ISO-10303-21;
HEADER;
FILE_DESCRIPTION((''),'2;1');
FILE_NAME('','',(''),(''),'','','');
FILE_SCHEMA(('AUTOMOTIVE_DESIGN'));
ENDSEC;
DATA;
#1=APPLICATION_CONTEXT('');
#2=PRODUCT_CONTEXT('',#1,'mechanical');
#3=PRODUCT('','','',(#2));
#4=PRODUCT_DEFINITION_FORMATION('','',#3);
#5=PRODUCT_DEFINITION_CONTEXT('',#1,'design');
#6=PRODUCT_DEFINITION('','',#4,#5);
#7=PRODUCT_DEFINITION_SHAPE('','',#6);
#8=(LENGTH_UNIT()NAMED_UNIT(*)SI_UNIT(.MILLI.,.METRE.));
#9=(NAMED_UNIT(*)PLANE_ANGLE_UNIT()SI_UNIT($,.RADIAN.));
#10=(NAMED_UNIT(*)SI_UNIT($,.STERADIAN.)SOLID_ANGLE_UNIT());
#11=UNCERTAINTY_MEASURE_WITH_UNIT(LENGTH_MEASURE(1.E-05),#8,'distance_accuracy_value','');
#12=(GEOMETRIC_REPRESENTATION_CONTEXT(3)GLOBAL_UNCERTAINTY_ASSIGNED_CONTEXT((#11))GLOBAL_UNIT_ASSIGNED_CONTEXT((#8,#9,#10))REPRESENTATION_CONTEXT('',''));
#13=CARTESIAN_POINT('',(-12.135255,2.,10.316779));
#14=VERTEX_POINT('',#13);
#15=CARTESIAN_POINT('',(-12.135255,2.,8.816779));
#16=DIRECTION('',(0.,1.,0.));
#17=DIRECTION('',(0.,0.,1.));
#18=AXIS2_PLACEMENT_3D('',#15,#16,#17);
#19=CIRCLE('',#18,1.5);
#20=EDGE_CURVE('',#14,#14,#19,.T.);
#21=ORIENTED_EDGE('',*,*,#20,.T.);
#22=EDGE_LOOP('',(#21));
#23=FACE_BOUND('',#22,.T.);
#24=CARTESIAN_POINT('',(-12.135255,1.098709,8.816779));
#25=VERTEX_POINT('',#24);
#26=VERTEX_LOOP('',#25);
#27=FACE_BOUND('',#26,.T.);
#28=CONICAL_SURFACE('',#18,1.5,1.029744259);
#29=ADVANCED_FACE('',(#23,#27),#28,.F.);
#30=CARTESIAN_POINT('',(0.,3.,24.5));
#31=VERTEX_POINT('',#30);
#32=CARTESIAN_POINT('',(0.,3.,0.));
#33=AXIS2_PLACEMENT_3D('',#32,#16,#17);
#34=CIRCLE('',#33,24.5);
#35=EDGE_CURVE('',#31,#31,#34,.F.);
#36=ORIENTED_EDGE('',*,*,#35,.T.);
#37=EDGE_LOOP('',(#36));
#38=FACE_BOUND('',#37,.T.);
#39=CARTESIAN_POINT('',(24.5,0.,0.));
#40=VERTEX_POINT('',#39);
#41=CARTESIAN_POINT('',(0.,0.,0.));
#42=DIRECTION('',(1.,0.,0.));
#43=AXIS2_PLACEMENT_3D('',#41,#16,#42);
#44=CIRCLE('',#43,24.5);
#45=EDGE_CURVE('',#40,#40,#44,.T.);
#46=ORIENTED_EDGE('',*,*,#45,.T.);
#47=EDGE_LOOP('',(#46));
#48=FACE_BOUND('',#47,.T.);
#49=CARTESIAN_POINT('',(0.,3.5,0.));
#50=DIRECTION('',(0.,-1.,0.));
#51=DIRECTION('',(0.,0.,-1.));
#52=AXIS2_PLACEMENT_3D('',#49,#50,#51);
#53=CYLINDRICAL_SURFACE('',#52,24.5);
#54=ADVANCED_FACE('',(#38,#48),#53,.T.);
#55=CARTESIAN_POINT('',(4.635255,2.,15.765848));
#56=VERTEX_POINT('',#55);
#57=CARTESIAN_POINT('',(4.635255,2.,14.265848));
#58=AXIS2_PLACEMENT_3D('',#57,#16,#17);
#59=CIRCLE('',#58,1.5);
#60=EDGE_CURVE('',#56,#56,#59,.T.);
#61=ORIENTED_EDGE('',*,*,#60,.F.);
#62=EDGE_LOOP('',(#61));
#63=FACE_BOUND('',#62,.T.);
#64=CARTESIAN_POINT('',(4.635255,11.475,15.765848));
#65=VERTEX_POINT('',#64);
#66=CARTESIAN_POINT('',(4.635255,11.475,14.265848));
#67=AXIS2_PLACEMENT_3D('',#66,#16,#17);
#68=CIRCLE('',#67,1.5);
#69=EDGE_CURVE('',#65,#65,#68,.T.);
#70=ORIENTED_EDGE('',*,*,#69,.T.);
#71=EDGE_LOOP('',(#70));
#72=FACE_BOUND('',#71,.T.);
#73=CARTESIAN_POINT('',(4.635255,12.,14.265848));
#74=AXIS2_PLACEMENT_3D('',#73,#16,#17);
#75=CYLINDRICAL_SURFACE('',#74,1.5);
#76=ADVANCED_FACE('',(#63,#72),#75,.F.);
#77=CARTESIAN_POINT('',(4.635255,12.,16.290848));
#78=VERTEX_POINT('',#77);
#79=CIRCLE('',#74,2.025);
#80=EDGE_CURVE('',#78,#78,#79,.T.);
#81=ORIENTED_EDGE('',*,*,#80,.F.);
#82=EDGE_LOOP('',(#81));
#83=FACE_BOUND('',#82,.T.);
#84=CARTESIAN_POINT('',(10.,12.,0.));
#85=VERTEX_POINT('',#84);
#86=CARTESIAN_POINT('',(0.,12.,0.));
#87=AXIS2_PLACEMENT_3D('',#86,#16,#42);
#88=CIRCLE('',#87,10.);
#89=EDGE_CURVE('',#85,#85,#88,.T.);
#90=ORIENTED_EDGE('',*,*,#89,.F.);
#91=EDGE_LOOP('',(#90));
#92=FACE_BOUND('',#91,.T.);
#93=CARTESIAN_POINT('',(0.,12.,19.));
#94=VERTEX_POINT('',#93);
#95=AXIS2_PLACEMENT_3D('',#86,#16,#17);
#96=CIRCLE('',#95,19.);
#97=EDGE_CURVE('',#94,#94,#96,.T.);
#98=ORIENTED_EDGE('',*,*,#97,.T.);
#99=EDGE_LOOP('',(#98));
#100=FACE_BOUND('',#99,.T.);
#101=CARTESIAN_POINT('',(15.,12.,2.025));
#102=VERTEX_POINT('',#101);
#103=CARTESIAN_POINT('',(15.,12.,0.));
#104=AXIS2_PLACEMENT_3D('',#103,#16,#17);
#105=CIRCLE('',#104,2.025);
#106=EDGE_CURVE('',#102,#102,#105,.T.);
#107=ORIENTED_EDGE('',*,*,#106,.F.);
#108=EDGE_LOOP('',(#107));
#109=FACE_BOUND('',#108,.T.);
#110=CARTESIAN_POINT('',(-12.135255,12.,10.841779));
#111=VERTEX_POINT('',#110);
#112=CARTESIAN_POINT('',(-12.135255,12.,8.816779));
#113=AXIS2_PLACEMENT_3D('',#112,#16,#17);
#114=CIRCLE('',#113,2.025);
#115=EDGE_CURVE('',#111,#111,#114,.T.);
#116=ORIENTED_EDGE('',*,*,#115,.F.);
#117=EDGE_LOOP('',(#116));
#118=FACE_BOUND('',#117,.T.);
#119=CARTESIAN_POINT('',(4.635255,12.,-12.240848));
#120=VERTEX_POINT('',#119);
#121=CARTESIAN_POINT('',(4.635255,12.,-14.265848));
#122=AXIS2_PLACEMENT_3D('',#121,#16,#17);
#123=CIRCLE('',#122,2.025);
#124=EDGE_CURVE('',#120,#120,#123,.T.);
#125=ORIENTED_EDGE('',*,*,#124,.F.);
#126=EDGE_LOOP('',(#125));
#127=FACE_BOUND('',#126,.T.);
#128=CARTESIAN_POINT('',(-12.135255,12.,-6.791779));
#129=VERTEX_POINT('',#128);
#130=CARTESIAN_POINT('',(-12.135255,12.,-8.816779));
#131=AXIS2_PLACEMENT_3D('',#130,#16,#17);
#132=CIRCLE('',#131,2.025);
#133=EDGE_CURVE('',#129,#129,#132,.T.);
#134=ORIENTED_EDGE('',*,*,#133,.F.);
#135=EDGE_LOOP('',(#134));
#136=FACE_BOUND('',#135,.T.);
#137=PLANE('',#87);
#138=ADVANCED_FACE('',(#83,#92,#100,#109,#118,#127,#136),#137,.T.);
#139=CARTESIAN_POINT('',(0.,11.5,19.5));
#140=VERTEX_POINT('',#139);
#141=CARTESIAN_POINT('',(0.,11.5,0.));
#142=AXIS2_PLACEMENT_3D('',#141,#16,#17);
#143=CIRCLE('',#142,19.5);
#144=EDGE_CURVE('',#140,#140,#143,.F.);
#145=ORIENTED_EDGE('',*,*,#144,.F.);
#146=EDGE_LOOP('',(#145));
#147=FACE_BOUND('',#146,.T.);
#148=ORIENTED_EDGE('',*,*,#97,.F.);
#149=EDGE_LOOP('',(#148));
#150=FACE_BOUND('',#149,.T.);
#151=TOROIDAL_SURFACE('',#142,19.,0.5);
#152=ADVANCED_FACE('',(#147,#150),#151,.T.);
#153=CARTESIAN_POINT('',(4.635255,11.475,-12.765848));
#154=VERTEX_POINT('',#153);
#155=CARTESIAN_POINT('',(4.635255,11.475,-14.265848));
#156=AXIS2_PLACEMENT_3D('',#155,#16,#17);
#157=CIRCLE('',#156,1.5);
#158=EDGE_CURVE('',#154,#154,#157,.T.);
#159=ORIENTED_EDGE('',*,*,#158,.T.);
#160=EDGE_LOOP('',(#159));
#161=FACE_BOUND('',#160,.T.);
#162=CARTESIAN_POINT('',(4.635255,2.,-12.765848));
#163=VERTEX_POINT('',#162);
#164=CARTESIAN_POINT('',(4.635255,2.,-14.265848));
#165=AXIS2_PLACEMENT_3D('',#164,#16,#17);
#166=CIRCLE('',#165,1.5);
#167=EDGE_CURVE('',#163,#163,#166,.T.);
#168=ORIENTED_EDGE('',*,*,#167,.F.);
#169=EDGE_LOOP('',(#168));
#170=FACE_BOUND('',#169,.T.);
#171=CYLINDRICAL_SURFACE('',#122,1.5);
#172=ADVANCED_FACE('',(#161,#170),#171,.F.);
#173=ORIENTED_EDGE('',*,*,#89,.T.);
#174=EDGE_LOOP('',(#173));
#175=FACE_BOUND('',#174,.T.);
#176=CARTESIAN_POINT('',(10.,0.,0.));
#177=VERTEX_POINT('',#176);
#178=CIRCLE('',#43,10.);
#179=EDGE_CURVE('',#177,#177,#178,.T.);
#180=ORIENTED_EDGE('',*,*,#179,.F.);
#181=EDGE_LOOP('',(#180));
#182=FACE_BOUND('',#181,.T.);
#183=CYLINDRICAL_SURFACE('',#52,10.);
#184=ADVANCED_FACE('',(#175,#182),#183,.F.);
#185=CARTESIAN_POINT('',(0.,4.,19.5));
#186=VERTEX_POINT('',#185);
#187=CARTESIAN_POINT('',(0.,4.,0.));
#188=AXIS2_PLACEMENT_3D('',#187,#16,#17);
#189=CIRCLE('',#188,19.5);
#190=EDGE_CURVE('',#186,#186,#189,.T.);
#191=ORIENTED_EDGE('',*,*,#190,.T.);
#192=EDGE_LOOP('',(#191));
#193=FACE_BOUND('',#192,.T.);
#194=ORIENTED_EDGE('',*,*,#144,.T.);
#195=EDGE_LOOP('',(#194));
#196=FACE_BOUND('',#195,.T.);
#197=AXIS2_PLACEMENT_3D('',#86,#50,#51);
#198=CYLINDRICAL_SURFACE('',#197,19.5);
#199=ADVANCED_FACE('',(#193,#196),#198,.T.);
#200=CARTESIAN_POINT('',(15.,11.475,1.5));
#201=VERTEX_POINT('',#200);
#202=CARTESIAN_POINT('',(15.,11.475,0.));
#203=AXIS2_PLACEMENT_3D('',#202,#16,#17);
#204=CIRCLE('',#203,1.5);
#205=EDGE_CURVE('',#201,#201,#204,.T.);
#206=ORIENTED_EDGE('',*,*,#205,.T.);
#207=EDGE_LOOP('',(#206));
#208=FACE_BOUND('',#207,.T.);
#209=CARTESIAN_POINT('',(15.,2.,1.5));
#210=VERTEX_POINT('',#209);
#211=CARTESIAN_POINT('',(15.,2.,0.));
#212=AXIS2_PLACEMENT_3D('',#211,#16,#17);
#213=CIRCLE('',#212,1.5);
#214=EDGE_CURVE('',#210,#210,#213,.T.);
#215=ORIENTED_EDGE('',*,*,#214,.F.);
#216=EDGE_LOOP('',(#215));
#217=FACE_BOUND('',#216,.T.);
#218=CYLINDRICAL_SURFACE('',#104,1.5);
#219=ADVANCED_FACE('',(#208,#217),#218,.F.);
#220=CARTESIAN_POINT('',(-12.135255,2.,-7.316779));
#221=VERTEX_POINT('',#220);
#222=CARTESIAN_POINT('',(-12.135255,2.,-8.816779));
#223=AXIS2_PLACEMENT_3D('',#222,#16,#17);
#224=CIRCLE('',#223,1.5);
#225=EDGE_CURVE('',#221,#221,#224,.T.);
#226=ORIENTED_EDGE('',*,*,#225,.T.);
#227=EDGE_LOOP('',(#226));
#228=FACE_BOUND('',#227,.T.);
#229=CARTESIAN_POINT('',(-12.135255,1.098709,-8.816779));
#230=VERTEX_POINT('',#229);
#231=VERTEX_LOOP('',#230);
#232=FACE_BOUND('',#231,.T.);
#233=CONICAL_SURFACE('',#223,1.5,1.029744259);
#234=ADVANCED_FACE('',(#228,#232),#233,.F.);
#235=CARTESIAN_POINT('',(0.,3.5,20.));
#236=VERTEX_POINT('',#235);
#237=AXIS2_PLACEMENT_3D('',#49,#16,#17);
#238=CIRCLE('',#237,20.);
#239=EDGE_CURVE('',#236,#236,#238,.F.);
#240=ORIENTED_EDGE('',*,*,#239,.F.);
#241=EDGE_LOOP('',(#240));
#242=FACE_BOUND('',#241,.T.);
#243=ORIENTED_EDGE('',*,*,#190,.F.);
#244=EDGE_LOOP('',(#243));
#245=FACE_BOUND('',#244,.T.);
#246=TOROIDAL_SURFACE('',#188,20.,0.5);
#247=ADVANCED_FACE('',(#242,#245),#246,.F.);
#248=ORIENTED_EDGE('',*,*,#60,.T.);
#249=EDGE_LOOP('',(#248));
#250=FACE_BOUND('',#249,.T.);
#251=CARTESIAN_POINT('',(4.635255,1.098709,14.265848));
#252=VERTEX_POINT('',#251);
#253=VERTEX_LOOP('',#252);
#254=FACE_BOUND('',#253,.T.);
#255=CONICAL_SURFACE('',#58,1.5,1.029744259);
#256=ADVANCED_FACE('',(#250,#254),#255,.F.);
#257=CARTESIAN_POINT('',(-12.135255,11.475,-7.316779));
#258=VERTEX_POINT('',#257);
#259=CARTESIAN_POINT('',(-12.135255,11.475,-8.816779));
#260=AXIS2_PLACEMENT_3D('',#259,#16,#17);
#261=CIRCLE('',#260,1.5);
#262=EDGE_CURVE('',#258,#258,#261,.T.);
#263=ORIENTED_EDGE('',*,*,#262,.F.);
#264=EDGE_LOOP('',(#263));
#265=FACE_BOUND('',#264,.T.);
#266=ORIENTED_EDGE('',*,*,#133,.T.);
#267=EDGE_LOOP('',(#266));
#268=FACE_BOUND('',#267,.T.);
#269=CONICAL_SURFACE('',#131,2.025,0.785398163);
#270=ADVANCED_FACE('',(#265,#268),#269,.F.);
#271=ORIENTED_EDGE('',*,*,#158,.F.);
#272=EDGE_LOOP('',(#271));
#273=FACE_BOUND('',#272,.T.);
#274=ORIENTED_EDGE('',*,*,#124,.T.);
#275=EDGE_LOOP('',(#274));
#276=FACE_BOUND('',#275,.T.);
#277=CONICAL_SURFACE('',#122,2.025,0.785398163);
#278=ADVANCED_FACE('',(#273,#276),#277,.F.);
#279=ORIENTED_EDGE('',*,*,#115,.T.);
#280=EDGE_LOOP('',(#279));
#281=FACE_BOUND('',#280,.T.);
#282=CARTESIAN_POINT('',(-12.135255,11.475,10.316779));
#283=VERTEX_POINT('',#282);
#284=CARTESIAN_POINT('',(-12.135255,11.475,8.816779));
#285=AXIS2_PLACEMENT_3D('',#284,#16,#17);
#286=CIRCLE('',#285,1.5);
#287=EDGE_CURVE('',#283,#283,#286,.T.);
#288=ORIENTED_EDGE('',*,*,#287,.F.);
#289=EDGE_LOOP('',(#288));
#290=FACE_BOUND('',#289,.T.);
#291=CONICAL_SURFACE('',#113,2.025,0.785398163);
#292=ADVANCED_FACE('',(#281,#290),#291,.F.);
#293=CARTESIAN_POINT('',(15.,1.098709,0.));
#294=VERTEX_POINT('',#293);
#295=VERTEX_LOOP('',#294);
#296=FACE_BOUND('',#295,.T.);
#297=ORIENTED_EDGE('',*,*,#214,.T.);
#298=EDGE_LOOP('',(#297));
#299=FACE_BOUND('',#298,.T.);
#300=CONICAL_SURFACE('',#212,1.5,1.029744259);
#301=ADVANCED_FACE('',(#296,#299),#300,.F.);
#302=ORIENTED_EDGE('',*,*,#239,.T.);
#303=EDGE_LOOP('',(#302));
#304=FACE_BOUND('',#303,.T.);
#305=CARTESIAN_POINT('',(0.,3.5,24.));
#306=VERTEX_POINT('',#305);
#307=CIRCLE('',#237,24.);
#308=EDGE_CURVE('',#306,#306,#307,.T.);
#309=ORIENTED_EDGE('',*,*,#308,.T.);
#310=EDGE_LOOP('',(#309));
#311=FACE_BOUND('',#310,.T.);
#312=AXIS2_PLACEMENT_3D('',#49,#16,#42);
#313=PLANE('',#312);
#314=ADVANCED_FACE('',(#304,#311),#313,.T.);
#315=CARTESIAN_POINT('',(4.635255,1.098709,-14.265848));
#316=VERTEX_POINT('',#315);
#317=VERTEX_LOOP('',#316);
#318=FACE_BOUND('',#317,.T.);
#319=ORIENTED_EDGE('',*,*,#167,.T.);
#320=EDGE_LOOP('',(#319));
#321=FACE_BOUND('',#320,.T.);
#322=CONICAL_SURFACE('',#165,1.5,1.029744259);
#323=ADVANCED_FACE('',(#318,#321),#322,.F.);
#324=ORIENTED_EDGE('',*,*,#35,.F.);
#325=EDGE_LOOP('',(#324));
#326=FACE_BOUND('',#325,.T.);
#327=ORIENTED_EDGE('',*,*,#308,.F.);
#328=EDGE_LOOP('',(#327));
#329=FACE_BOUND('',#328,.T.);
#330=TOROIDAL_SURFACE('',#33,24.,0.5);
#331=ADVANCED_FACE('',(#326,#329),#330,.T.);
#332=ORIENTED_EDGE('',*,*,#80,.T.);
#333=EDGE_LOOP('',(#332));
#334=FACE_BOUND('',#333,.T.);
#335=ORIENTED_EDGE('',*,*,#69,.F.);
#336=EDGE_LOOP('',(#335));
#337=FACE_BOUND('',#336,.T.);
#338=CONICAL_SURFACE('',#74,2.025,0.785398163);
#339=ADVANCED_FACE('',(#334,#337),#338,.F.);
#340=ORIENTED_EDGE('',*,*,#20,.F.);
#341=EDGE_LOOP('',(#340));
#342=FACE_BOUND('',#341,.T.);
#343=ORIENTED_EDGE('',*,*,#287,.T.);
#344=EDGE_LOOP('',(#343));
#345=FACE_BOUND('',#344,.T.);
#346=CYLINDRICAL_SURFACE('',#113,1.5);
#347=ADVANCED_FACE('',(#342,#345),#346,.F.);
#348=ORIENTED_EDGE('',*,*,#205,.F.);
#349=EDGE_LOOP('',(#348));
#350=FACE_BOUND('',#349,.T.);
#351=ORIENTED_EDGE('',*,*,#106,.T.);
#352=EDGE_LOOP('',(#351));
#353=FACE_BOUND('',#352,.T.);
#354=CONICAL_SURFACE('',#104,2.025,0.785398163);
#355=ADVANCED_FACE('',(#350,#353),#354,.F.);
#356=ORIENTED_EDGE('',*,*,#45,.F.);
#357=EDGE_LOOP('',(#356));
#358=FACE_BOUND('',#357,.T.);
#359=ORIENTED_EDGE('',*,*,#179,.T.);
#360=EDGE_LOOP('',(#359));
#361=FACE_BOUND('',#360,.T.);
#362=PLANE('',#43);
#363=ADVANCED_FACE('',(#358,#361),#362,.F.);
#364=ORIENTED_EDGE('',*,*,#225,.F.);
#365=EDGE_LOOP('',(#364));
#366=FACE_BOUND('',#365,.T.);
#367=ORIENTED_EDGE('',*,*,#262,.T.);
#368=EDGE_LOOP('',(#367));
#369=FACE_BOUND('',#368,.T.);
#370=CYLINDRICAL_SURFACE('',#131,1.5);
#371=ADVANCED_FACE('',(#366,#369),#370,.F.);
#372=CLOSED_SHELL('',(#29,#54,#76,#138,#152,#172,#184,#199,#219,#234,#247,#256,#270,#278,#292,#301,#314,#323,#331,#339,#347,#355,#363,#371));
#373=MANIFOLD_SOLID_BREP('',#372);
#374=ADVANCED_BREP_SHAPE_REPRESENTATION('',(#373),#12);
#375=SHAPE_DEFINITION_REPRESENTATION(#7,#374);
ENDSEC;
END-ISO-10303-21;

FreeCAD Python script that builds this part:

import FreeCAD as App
import Part
import Sketcher

V = App.Vector
Q = App.Units.Quantity


def edges_at(feature, points):
    """Names of the edges that pass closest to the given points."""
    edges = feature.Shape.Edges
    near = lambda p: min(range(len(edges)), key=lambda i: edges[i].distToShape(Part.Vertex(*p))[0])
    return sorted({f"Edge{near(p) + 1}" for p in points})


def add_polygon(sketch, points):
    """Adds a closed chain of lines whose ends are joined by coincident constraints."""
    first, n = sketch.GeometryCount, len(points)
    for a, b in zip(points, points[1:] + points[:1]):
        sketch.addGeometry(Part.LineSegment(App.Vector(*a, 0), App.Vector(*b, 0)), False)
    for i in range(n):
        sketch.addConstraint(Sketcher.Constraint("Coincident", first + i, 2, first + (i + 1) % n, 1))

doc = App.newDocument("Part")
params = doc.addObject("Spreadsheet::Sheet", "Params")
for row, (alias, value) in enumerate([
    ("sketch1_diameter", "49 mm"),
    ("sketch1_diameter2", "20 mm"),
    ("pad1_length", "3.5 mm"),
    ("sketch2_diameter", "39 mm"),
    ("sketch2_diameter2", "20 mm"),
    ("pad2_length", "12 mm"),
    ("groove_angle", "360 deg"),
    ("fillet_radius", "0.5 mm"),
], start=1):
    params.set(f"A{row}", alias)
    params.set(f"B{row}", "=" + value)
    params.setAlias(f"B{row}", alias)

body = doc.addObject("PartDesign::Body", "Body")

# Sketch on XZ plane
sketch1 = body.newObject("Sketcher::SketchObject", "Sketch")
sketch1.AttachmentSupport = (doc.getObject("XZ_Plane"), [""])
sketch1.MapMode = "FlatFace"
sketch1.addGeometry(Part.Circle(V(0, 0, 0), V(0, 0, 1), 24), False)
sketch1.addGeometry(Part.Circle(V(0, 0, 0), V(0, 0, 1), 10), False)
sketch1.addConstraint(Sketcher.Constraint("Coincident", 0, 3, -1, 1))
sketch1.addConstraint(Sketcher.Constraint("Coincident", 1, 3, -1, 1))
sketch1.addConstraint(Sketcher.Constraint("Diameter", 0, 49.0))
sketch1.addConstraint(Sketcher.Constraint("Diameter", 1, 20.0))
sketch1.setExpression("Constraints[2]", "Params.sketch1_diameter")
sketch1.setExpression("Constraints[3]", "Params.sketch1_diameter2")
pad1 = body.newObject("PartDesign::Pad", "Pad")
pad1.Profile = sketch1
pad1.setExpression("Length", "Params.pad1_length")
pad1.Reversed = True

# Sketch on XZ plane
sketch2 = body.newObject("Sketcher::SketchObject", "Sketch001")
sketch2.AttachmentSupport = (doc.getObject("XZ_Plane"), [""])
sketch2.MapMode = "FlatFace"
sketch2.addGeometry(Part.Circle(V(0, 0, 0), V(0, 0, 1), 20), False)
sketch2.addGeometry(Part.Circle(V(0, 0, 0), V(0, 0, 1), 10), False)
sketch2.addConstraint(Sketcher.Constraint("Coincident", 0, 3, -1, 1))
sketch2.addConstraint(Sketcher.Constraint("Coincident", 1, 3, -1, 1))
sketch2.addConstraint(Sketcher.Constraint("Diameter", 0, 39.0))
sketch2.addConstraint(Sketcher.Constraint("Diameter", 1, 20.0))
sketch2.setExpression("Constraints[2]", "Params.sketch2_diameter")
sketch2.setExpression("Constraints[3]", "Params.sketch2_diameter2")
pad2 = body.newObject("PartDesign::Pad", "Pad001")
pad2.Profile = sketch2
pad2.setExpression("Length", "Params.pad2_length")
pad2.Reversed = True

# Sketch on YZ plane
sketch3 = body.newObject("Sketcher::SketchObject", "Sketch002")
sketch3.AttachmentSupport = (doc.getObject("YZ_Plane"), [""])
sketch3.MapMode = "FlatFace"
sketch3.AttachmentOffset = App.Placement(V(0, 0, 15), App.Rotation())
add_polygon(sketch3, [(1.1, 0), (12, 0), (12, 2), (11.5, 1.5), (2, 1.5)])  # lines 0-4
sketch3.addConstraint(Sketcher.Constraint("Horizontal", 0))
sketch3.addConstraint(Sketcher.Constraint("Vertical", 1))
sketch3.addConstraint(Sketcher.Constraint("Horizontal", 3))
sketch3.addConstraint(Sketcher.Constraint("PointOnObject", 0, 2, -1))
sketch3.addConstraint(Sketcher.Constraint("Angle", 2, Q("-135 deg")))
sketch3.addConstraint(Sketcher.Constraint("Angle", 4, Q("-121 deg")))
sketch3.addConstraint(Sketcher.Constraint("DistanceX", -1, 1, 0, 2, 12.0))
sketch3.addConstraint(Sketcher.Constraint("DistanceX", -1, 1, 3, 2, 2.0))
sketch3.addConstraint(Sketcher.Constraint("DistanceY", -1, 1, 2, 2, 1.5))
sketch3.addConstraint(Sketcher.Constraint("DistanceX", 3, 2, 3, 1, 9.475))
groove = body.newObject("PartDesign::Groove", "Groove")
groove.Profile = sketch3
groove.ReferenceAxis = (sketch3, ["H_Axis"])
groove.setExpression("Angle", "Params.groove_angle")
doc.recompute()

polarpattern = body.newObject("PartDesign::PolarPattern", "PolarPattern")
polarpattern.Originals = [groove]
polarpattern.Axis = (doc.getObject("Y_Axis"), [""])
polarpattern.Angle = 360
polarpattern.Occurrences = 5
body.Tip = polarpattern
doc.recompute()

fillet = body.newObject("PartDesign::Fillet", "Fillet")
fillet.Base = (polarpattern, edges_at(polarpattern, [(-19.5, 3.5, 0), (-19.5, 12, 0), (-24.5, 3.5, 0)]))
fillet.setExpression("Radius", "Params.fillet_radius")

doc.recompute()
